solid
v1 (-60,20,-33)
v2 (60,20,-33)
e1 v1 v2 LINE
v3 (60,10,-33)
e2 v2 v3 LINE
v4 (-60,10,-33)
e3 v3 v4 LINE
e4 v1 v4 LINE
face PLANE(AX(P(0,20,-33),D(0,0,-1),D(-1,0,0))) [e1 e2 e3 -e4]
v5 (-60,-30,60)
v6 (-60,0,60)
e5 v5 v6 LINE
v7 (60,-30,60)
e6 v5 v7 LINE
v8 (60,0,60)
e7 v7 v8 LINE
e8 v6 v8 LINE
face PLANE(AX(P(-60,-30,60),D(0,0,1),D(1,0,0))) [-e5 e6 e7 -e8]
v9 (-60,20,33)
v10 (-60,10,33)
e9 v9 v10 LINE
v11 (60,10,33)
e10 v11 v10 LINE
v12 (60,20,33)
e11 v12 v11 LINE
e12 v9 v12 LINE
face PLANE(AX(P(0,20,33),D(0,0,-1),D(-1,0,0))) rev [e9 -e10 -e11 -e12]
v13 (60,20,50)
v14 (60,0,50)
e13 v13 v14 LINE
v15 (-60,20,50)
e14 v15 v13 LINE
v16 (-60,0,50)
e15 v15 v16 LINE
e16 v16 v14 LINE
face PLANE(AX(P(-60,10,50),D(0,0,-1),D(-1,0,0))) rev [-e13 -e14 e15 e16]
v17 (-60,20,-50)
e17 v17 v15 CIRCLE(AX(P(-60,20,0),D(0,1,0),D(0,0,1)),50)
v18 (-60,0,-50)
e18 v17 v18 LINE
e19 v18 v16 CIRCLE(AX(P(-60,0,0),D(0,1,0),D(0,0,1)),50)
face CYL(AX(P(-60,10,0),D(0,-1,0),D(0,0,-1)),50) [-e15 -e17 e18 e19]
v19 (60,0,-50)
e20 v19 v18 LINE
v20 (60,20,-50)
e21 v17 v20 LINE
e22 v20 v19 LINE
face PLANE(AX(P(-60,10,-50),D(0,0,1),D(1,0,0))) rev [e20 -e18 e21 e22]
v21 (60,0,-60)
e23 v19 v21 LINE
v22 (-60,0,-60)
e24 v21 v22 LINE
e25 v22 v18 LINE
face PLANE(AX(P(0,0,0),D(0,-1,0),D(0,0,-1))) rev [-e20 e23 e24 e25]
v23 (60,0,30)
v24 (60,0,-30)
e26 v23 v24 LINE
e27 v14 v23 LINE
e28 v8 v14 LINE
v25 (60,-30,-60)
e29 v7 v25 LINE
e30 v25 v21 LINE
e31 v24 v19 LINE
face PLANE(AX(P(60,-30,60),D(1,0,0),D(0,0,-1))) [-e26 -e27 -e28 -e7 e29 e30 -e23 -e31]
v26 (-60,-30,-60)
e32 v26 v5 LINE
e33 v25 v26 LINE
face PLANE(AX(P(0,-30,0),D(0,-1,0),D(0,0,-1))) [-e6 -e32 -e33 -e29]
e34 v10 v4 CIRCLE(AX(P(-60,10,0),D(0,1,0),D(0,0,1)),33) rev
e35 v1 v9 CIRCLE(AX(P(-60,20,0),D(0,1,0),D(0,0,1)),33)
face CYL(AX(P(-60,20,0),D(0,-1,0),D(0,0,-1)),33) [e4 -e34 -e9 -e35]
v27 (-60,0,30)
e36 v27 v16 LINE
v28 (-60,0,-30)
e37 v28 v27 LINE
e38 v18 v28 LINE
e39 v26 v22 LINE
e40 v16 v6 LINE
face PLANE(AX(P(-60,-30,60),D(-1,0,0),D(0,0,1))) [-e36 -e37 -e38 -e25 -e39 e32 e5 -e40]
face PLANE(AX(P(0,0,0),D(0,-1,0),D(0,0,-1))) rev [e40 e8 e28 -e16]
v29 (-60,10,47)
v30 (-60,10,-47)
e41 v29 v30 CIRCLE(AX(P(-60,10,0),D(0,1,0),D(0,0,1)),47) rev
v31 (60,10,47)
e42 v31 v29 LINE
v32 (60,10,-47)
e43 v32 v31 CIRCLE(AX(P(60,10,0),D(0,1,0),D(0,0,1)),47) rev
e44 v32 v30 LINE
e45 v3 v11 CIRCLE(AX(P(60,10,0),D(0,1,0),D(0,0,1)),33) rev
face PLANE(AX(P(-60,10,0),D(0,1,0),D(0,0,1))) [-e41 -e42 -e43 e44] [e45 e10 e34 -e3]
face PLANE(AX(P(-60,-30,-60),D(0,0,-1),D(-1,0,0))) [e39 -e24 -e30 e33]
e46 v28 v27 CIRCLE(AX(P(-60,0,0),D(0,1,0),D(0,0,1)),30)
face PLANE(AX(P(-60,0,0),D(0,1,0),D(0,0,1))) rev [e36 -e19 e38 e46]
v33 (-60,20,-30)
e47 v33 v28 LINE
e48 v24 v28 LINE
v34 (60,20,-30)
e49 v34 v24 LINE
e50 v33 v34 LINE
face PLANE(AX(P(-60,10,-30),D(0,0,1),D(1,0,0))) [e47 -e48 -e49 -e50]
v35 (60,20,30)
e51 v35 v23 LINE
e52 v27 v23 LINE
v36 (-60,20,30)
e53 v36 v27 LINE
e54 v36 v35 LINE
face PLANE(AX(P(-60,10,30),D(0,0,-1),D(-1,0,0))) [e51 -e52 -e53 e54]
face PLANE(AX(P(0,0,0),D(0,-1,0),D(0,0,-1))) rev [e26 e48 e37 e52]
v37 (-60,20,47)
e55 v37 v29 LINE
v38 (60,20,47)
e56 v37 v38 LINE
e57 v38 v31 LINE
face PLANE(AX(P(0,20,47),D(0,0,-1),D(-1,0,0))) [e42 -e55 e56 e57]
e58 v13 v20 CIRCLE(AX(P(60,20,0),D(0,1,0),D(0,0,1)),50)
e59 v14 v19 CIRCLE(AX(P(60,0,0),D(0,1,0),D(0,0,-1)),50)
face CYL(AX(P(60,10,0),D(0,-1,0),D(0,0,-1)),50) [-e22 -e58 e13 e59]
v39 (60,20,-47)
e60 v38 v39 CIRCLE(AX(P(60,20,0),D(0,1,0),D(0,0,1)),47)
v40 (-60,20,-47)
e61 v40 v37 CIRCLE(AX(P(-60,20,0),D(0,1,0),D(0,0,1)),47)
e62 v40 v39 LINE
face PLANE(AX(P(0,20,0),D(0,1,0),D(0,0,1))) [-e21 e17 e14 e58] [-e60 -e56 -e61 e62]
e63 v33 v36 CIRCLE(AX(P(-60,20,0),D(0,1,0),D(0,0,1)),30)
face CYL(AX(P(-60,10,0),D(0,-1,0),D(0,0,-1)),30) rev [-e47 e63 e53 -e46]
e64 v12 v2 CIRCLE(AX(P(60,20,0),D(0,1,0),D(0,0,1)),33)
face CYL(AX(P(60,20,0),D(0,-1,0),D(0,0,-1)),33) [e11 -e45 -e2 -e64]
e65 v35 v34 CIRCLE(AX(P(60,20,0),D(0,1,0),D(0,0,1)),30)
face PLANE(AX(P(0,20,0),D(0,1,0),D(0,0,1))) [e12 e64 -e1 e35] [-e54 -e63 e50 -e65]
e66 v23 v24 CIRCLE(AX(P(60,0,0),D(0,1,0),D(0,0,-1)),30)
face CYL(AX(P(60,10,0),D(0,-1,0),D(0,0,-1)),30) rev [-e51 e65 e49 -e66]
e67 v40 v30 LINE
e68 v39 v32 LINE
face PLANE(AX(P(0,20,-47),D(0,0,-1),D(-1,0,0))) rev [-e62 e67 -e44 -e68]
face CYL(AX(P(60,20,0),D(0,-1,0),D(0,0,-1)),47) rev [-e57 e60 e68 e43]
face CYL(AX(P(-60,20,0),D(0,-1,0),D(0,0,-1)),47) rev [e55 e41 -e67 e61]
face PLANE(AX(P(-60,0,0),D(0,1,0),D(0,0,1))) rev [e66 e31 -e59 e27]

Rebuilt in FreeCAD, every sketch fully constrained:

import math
import FreeCAD as App
import Part
import Sketcher

V = App.Vector
Q = App.Units.Quantity

doc = App.newDocument("Part")
body = doc.addObject("PartDesign::Body", "Body")

# Sketch on XZ plane
sketch1 = body.newObject("Sketcher::SketchObject", "Sketch")
sketch1.AttachmentSupport = (doc.getObject("XZ_Plane"), [""])
sketch1.MapMode = "FlatFace"
sketch1.addGeometry(Part.LineSegment(V(60, -50, 0), V(-60, -50, 0)), False)
sketch1.addGeometry(Part.ArcOfCircle(Part.Circle(V(-60, 0, 0), V(0, 0, 1), 50), math.radians(90), math.radians(270)), False)
sketch1.addGeometry(Part.LineSegment(V(-60, 50, 0), V(60, 50, 0)), False)
sketch1.addGeometry(Part.ArcOfCircle(Part.Circle(V(60, 0, 0), V(0, 0, 1), 50), math.radians(-90), math.radians(90)), False)
sketch1.addGeometry(Part.ArcOfCircle(Part.Circle(V(-60, 0, 0), V(0, 0, 1), 30), math.radians(90), math.radians(270)), False)
sketch1.addGeometry(Part.LineSegment(V(-60, -30, 0), V(60, -30, 0)), False)
sketch1.addGeometry(Part.ArcOfCircle(Part.Circle(V(60, 0, 0), V(0, 0, 1), 30), math.radians(-90), math.radians(90)), False)
sketch1.addGeometry(Part.LineSegment(V(60, 30, 0), V(-60, 30, 0)), False)
sketch1.addConstraint(Sketcher.Constraint("Tangent", 0, 2, 1, 2))
sketch1.addConstraint(Sketcher.Constraint("Tangent", 1, 1, 2, 1))
sketch1.addConstraint(Sketcher.Constraint("Tangent", 2, 2, 3, 2))
sketch1.addConstraint(Sketcher.Constraint("Tangent", 3, 1, 0, 1))
sketch1.addConstraint(Sketcher.Constraint("Tangent", 4, 2, 5, 1))
sketch1.addConstraint(Sketcher.Constraint("Tangent", 5, 2, 6, 1))
sketch1.addConstraint(Sketcher.Constraint("Tangent", 6, 2, 7, 1))
sketch1.addConstraint(Sketcher.Constraint("Tangent", 7, 2, 4, 1))
sketch1.addConstraint(Sketcher.Constraint("Horizontal", 0))
sketch1.addConstraint(Sketcher.Constraint("Horizontal", 2))
sketch1.addConstraint(Sketcher.Constraint("Horizontal", 5))
sketch1.addConstraint(Sketcher.Constraint("Horizontal", 7))
sketch1.addConstraint(Sketcher.Constraint("Coincident", 4, 3, 1, 3))
sketch1.addConstraint(Sketcher.Constraint("Symmetric", 1, 3, 3, 3, -1, 1))
sketch1.addConstraint(Sketcher.Constraint("Vertical", 6, 3, 2, 2))
sketch1.addConstraint(Sketcher.Constraint("Radius", 1, Q("50 mm")))
sketch1.addConstraint(Sketcher.Constraint("Radius", 4, Q("30 mm")))
sketch1.addConstraint(Sketcher.Constraint("DistanceX", 0, 2, 0, 1, Q("120 mm")))
pad1 = body.newObject("PartDesign::Pad", "Pad")
pad1.Profile = sketch1
pad1.Length = 10
pad1.Reversed = True

# Sketch on XZ plane
sketch2 = body.newObject("Sketcher::SketchObject", "Sketch001")
sketch2.AttachmentSupport = (doc.getObject("XZ_Plane"), [""])
sketch2.MapMode = "FlatFace"
sketch2.addGeometry(Part.LineSegment(V(60, -50, 0), V(-60, -50, 0)), False)
sketch2.addGeometry(Part.ArcOfCircle(Part.Circle(V(-60, 0, 0), V(0, 0, 1), 50), math.radians(90), math.radians(270)), False)
sketch2.addGeometry(Part.LineSegment(V(-60, 50, 0), V(60, 50, 0)), False)
sketch2.addGeometry(Part.ArcOfCircle(Part.Circle(V(60, 0, 0), V(0, 0, 1), 50), math.radians(-90), math.radians(90)), False)
sketch2.addGeometry(Part.LineSegment(V(60, 47, 0), V(-60, 47, 0)), False)
sketch2.addGeometry(Part.ArcOfCircle(Part.Circle(V(-60, 0, 0), V(0, 0, 1), 47), math.radians(90), math.radians(270)), False)
sketch2.addGeometry(Part.LineSegment(V(-60, -47, 0), V(60, -47, 0)), False)
sketch2.addGeometry(Part.ArcOfCircle(Part.Circle(V(60, 0, 0), V(0, 0, 1), 47), math.radians(-90), math.radians(90)), False)
sketch2.addGeometry(Part.LineSegment(V(60, -33, 0), V(-60, -33, 0)), False)
sketch2.addGeometry(Part.ArcOfCircle(Part.Circle(V(-60, 0, 0), V(0, 0, 1), 33), math.radians(90), math.radians(270)), False)
sketch2.addGeometry(Part.LineSegment(V(-60, 33, 0), V(60, 33, 0)), False)
sketch2.addGeometry(Part.ArcOfCircle(Part.Circle(V(60, 0, 0), V(0, 0, 1), 33), math.radians(-90), math.radians(90)), False)
sketch2.addGeometry(Part.LineSegment(V(-60, -30, 0), V(60, -30, 0)), False)
sketch2.addGeometry(Part.ArcOfCircle(Part.Circle(V(60, 0, 0), V(0, 0, 1), 30), math.radians(-90), math.radians(90)), False)
sketch2.addGeometry(Part.LineSegment(V(60, 30, 0), V(-60, 30, 0)), False)
sketch2.addGeometry(Part.ArcOfCircle(Part.Circle(V(-60, 0, 0), V(0, 0, 1), 30), math.radians(90), math.radians(270)), False)
sketch2.addConstraint(Sketcher.Constraint("Tangent", 0, 2, 1, 2))
sketch2.addConstraint(Sketcher.Constraint("Tangent", 1, 1, 2, 1))
sketch2.addConstraint(Sketcher.Constraint("Tangent", 2, 2, 3, 2))
sketch2.addConstraint(Sketcher.Constraint("Tangent", 3, 1, 0, 1))
sketch2.addConstraint(Sketcher.Constraint("Tangent", 4, 2, 5, 1))
sketch2.addConstraint(Sketcher.Constraint("Tangent", 5, 2, 6, 1))
sketch2.addConstraint(Sketcher.Constraint("Tangent", 6, 2, 7, 1))
sketch2.addConstraint(Sketcher.Constraint("Tangent", 7, 2, 4, 1))
sketch2.addConstraint(Sketcher.Constraint("Tangent", 8, 2, 9, 2))
sketch2.addConstraint(Sketcher.Constraint("Tangent", 9, 1, 10, 1))
sketch2.addConstraint(Sketcher.Constraint("Tangent", 10, 2, 11, 2))
sketch2.addConstraint(Sketcher.Constraint("Tangent", 11, 1, 8, 1))
sketch2.addConstraint(Sketcher.Constraint("Tangent", 12, 2, 13, 1))
sketch2.addConstraint(Sketcher.Constraint("Tangent", 13, 2, 14, 1))
sketch2.addConstraint(Sketcher.Constraint("Tangent", 14, 2, 15, 1))
sketch2.addConstraint(Sketcher.Constraint("Tangent", 15, 2, 12, 1))
sketch2.addConstraint(Sketcher.Constraint("Horizontal", 0))
sketch2.addConstraint(Sketcher.Constraint("Horizontal", 2))
sketch2.addConstraint(Sketcher.Constraint("Horizontal", 4))
sketch2.addConstraint(Sketcher.Constraint("Horizontal", 6))
sketch2.addConstraint(Sketcher.Constraint("Horizontal", 8))
sketch2.addConstraint(Sketcher.Constraint("Horizontal", 10))
sketch2.addConstraint(Sketcher.Constraint("Horizontal", 12))
sketch2.addConstraint(Sketcher.Constraint("Horizontal", 14))
sketch2.addConstraint(Sketcher.Constraint("Coincident", 5, 3, 1, 3))
sketch2.addConstraint(Sketcher.Constraint("Coincident", 9, 3, 1, 3))
sketch2.addConstraint(Sketcher.Constraint("Coincident", 13, 3, 3, 3))
sketch2.addConstraint(Sketcher.Constraint("Symmetric", 1, 3, 3, 3, -1, 1))
sketch2.addConstraint(Sketcher.Constraint("Vertical", 15, 3, 0, 2))
sketch2.addConstraint(Sketcher.Constraint("Vertical", 3, 1, 6, 2))
sketch2.addConstraint(Sketcher.Constraint("Vertical", 7, 2, 10, 2))
sketch2.addConstraint(Sketcher.Constraint("Radius", 1, Q("50 mm")))
sketch2.addConstraint(Sketcher.Constraint("Radius", 5, Q("47 mm")))
sketch2.addConstraint(Sketcher.Constraint("Radius", 9, Q("33 mm")))
sketch2.addConstraint(Sketcher.Constraint("Radius", 13, Q("30 mm")))
sketch2.addConstraint(Sketcher.Constraint("DistanceX", 0, 2, 0, 1, Q("120 mm")))
pad2 = body.newObject("PartDesign::Pad", "Pad001")
pad2.Profile = sketch2
pad2.Length = 20
pad2.Reversed = True

# Sketch on XZ plane
sketch3 = body.newObject("Sketcher::SketchObject", "Sketch002")
sketch3.AttachmentSupport = (doc.getObject("XZ_Plane"), [""])
sketch3.MapMode = "FlatFace"
sketch3.addGeometry(Part.LineSegment(V(-60, -60, 0), V(-60, 60, 0)), False)
sketch3.addGeometry(Part.LineSegment(V(-60, 60, 0), V(60, 60, 0)), False)
sketch3.addGeometry(Part.LineSegment(V(60, 60, 0), V(60, -60, 0)), False)
sketch3.addGeometry(Part.LineSegment(V(60, -60, 0), V(-60, -60, 0)), False)
sketch3.addConstraint(Sketcher.Constraint("Coincident", 0, 2, 1, 1))
sketch3.addConstraint(Sketcher.Constraint("Coincident", 1, 2, 2, 1))
sketch3.addConstraint(Sketcher.Constraint("Coincident", 2, 2, 3, 1))
sketch3.addConstraint(Sketcher.Constraint("Coincident", 3, 2, 0, 1))
sketch3.addConstraint(Sketcher.Constraint("Vertical", 0))
sketch3.addConstraint(Sketcher.Constraint("Horizontal", 1))
sketch3.addConstraint(Sketcher.Constraint("Vertical", 2))
sketch3.addConstraint(Sketcher.Constraint("Horizontal", 3))
sketch3.addConstraint(Sketcher.Constraint("Symmetric", 0, 2, 2, 2, -1, 1))
sketch3.addConstraint(Sketcher.Constraint("Equal", 3, 0))
sketch3.addConstraint(Sketcher.Constraint("DistanceX", 1, 1, 1, 2, Q("120 mm")))
pad3 = body.newObject("PartDesign::Pad", "Pad002")
pad3.Profile = sketch3
pad3.Length = 30

doc.recompute()
